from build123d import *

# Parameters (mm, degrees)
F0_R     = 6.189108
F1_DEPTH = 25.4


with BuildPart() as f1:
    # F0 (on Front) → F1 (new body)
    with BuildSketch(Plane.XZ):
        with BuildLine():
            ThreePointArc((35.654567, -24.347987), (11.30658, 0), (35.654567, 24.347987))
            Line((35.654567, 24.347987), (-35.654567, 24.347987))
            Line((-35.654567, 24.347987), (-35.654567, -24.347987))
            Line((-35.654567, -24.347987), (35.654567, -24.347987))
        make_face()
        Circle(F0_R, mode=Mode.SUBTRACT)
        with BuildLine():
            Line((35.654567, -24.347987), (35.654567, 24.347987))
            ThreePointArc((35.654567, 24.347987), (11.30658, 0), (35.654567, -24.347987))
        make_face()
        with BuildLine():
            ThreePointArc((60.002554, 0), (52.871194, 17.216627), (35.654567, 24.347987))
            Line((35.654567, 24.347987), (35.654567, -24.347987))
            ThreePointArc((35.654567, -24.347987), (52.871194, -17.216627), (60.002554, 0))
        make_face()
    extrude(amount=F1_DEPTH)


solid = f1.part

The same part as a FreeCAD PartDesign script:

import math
import FreeCAD as App
import Part
import Sketcher

doc = App.newDocument("Part")
params = doc.addObject("Spreadsheet::Sheet", "Params")
for row, (alias, value) in enumerate([
    ("pad1_length", "1 in"),
], start=1):
    params.set(f"A{row}", alias)
    params.set(f"B{row}", "=" + value)
    params.setAlias(f"B{row}", alias)

body = doc.addObject("PartDesign::Body", "Body")

# Sketch on XZ plane
sketch1 = body.newObject("Sketcher::SketchObject", "Sketch")
sketch1.AttachmentSupport = (doc.getObject("XZ_Plane"), [""])
sketch1.MapMode = "FlatFace"
sketch1.addGeometry([
    Part.LineSegment(App.Vector(-35.654567, -24.347987, 0), App.Vector(35.654567, -24.347987, 0)),  # 0
    Part.ArcOfCircle(Part.Circle(App.Vector(35.654568, -0.000001, 0), App.Vector(0, 0, 1), 24.347986), math.radians(-90.000002), math.radians(0.000002)),  # 1
    Part.ArcOfCircle(Part.Circle(App.Vector(35.654568, 0.000001, 0), App.Vector(0, 0, 1), 24.347986), math.radians(-0.000002), math.radians(90.000002)),  # 2
    Part.LineSegment(App.Vector(35.654567, 24.347987, 0), App.Vector(-35.654567, 24.347987, 0)),  # 3
    Part.LineSegment(App.Vector(-35.654567, 24.347987, 0), App.Vector(-35.654567, -24.347987, 0)),  # 4
    Part.Circle(App.Vector(0, 0, 0), App.Vector(0, 0, 1), 6.189108),  # 5
], False)
sketch1.addConstraint([
    Sketcher.Constraint("Tangent", 0, 2, 1, 1),
    Sketcher.Constraint("Tangent", 1, 2, 2, 1),
    Sketcher.Constraint("Tangent", 2, 2, 3, 1),
    Sketcher.Constraint("Coincident", 3, 2, 4, 1),
    Sketcher.Constraint("Coincident", 4, 2, 0, 1),
    Sketcher.Constraint("Horizontal", 0),
    Sketcher.Constraint("Horizontal", 3),
    Sketcher.Constraint("Vertical", 4),
    Sketcher.Constraint("Coincident", 5, 3, -1, 1),
    Sketcher.Constraint("Equal", 1, 2),
    Sketcher.Constraint("Symmetric", 0, 2, 3, 2, -1, 1),
    Sketcher.Constraint("PointOnObject", 1, 2, -1),
    Sketcher.Constraint("Diameter", 5, 12.378216),
    Sketcher.Constraint("Radius", 1, 24.347986),
    Sketcher.Constraint("DistanceX", 0, 1, 0, 2, 71.309134),
])
pad1 = body.newObject("PartDesign::Pad", "Pad")
pad1.Profile = sketch1
pad1.setExpression("Length", "Params.pad1_length")

doc.recompute()
